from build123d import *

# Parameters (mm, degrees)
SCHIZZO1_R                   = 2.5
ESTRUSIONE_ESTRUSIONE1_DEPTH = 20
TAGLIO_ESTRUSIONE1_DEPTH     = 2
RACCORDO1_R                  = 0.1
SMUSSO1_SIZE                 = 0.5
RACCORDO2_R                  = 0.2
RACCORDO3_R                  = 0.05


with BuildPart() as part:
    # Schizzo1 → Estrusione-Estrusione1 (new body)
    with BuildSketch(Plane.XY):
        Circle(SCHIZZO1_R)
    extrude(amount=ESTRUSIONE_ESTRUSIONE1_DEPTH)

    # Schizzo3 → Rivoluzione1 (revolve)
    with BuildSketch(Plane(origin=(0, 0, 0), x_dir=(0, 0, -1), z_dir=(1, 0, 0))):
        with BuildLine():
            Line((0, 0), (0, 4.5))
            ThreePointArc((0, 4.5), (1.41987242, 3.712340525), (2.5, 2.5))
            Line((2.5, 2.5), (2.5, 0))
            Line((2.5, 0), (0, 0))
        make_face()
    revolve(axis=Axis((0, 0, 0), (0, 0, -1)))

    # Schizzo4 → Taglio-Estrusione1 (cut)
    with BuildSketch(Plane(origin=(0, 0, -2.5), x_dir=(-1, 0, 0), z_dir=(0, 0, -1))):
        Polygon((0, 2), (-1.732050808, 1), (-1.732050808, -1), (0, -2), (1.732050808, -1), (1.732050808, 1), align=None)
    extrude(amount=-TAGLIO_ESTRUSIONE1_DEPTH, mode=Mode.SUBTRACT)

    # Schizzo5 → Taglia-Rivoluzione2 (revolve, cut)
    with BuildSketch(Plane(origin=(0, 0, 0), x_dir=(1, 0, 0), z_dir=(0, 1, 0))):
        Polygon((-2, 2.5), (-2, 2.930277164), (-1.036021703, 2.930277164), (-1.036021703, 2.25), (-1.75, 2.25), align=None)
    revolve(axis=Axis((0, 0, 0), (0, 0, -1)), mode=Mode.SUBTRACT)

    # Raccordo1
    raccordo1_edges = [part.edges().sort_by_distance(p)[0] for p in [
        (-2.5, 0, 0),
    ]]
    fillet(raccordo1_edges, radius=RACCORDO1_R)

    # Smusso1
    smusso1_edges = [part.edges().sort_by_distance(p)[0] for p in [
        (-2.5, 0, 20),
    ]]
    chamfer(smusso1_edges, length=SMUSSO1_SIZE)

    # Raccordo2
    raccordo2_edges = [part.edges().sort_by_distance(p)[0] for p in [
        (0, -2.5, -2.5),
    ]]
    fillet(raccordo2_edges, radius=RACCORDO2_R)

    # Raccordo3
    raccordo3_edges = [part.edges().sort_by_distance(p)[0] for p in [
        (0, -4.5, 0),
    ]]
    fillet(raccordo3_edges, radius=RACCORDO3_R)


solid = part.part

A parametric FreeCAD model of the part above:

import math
import FreeCAD as App
import Part
import Sketcher

V = App.Vector
Q = App.Units.Quantity


def edges_at(feature, points):
    """Names of the edges that pass closest to the given points."""
    edges = feature.Shape.Edges
    near = lambda p: min(range(len(edges)), key=lambda i: edges[i].distToShape(Part.Vertex(*p))[0])
    return sorted({f"Edge{near(p) + 1}" for p in points})


def add_polygon(sketch, points):
    """Adds a closed chain of lines whose ends are joined by coincident constraints."""
    first, n = sketch.GeometryCount, len(points)
    for a, b in zip(points, points[1:] + points[:1]):
        sketch.addGeometry(Part.LineSegment(App.Vector(*a, 0), App.Vector(*b, 0)), False)
    for i in range(n):
        sketch.addConstraint(Sketcher.Constraint("Coincident", first + i, 2, first + (i + 1) % n, 1))

doc = App.newDocument("Part")
body = doc.addObject("PartDesign::Body", "Body")

sketch1 = body.newObject("Sketcher::SketchObject", "Sketch")
sketch1.AttachmentSupport = (doc.getObject("XY_Plane"), [""])
sketch1.MapMode = "FlatFace"
sketch1.addGeometry(Part.Circle(V(0, 0, 0), V(0, 0, 1), 2.5), False)
sketch1.addConstraint(Sketcher.Constraint("Coincident", 0, 3, -1, 1))
sketch1.addConstraint(Sketcher.Constraint("Diameter", 0, Q("5 mm")))
pad1 = body.newObject("PartDesign::Pad", "Pad")
pad1.Profile = sketch1
pad1.Length = 20

sketch2 = body.newObject("Sketcher::SketchObject", "Sketch001")
sketch2.AttachmentSupport = (doc.getObject("YZ_Plane"), [""])
sketch2.MapMode = "FlatFace"
sketch2.addGeometry(Part.LineSegment(V(4.5, 0, 0), V(0, 0, 0)), False)
sketch2.addGeometry(Part.LineSegment(V(0, 0, 0), V(0, -2.5, 0)), False)
sketch2.addGeometry(Part.LineSegment(V(0, -2.5, 0), V(2.5, -2.5, 0)), False)
sketch2.addGeometry(Part.ArcOfCircle(Part.Circle(V(-0.073061, 1.608449, 0), V(0, 0, 1), 4.84768), math.radians(-57.94169), math.radians(-19.377927)), False)
sketch2.addConstraint(Sketcher.Constraint("Coincident", 0, 2, 1, 1))
sketch2.addConstraint(Sketcher.Constraint("Coincident", 1, 2, 2, 1))
sketch2.addConstraint(Sketcher.Constraint("Coincident", 2, 2, 3, 1))
sketch2.addConstraint(Sketcher.Constraint("Coincident", 3, 2, 0, 1))
sketch2.addConstraint(Sketcher.Constraint("Horizontal", 0))
sketch2.addConstraint(Sketcher.Constraint("Vertical", 1))
sketch2.addConstraint(Sketcher.Constraint("Horizontal", 2))
sketch2.addConstraint(Sketcher.Constraint("Coincident", 0, 2, -1, 1))
sketch2.addConstraint(Sketcher.Constraint("Equal", 2, 1))
sketch2.addConstraint(Sketcher.Constraint("DistanceX", 0, 2, 0, 1, Q("4.5 mm")))
sketch2.addConstraint(Sketcher.Constraint("DistanceX", 2, 1, 2, 2, Q("2.5 mm")))
sketch2.addConstraint(Sketcher.Constraint("Radius", 3, Q("4.84768 mm")))
revolution = body.newObject("PartDesign::Revolution", "Revolution")
revolution.Profile = sketch2
revolution.ReferenceAxis = (sketch2, ["V_Axis"])
revolution.Angle = 360

sketch3 = body.newObject("Sketcher::SketchObject", "Sketch002")
sketch3.AttachmentSupport = (doc.getObject("XY_Plane"), [""])
sketch3.MapMode = "FlatFace"
sketch3.AttachmentOffset = App.Placement(V(0, 0, -2.5), App.Rotation())
add_polygon(sketch3, [(0, 2), (1.732051, 1), (1.732051, -1), (0, -2), (-1.732051, -1), (-1.732051, 1)])
sketch3.addConstraint(Sketcher.Constraint("Vertical", 1))
sketch3.addConstraint(Sketcher.Constraint("Vertical", 4))
sketch3.addConstraint(Sketcher.Constraint("Symmetric", 0, 2, 3, 2, -1, 1))
sketch3.addConstraint(Sketcher.Constraint("Symmetric", 2, 2, 5, 2, -1, 1))
sketch3.addConstraint(Sketcher.Constraint("PointOnObject", 2, 2, -2))
sketch3.addConstraint(Sketcher.Constraint("Parallel", 2, 5))
sketch3.addConstraint(Sketcher.Constraint("Horizontal", 1, 2, 3, 2))
sketch3.addConstraint(Sketcher.Constraint("DistanceY", 1, 2, 1, 1, Q("2 mm")))
sketch3.addConstraint(Sketcher.Constraint("Angle", 0, Q("-30 deg")))
sketch3.addConstraint(Sketcher.Constraint("Distance", 0, Q("2 mm")))
pocket1 = body.newObject("PartDesign::Pocket", "Pocket")
pocket1.Profile = sketch3
pocket1.Length = 2
pocket1.Reversed = True

sketch4 = body.newObject("Sketcher::SketchObject", "Sketch003")
sketch4.AttachmentSupport = (doc.getObject("XZ_Plane"), [""])
sketch4.MapMode = "FlatFace"
add_polygon(sketch4, [(-2, -2.930277), (-2, -2.5), (-1.75, -2.25), (-1.036022, -2.25), (-1.036022, -2.930277)])
sketch4.addConstraint(Sketcher.Constraint("Vertical", 0))
sketch4.addConstraint(Sketcher.Constraint("Horizontal", 2))
sketch4.addConstraint(Sketcher.Constraint("Vertical", 3))
sketch4.addConstraint(Sketcher.Constraint("Horizontal", 4))
sketch4.addConstraint(Sketcher.Constraint("Angle", 1, Q("45 deg")))
sketch4.addConstraint(Sketcher.Constraint("DistanceX", 0, 2, -1, 1, Q("2 mm")))
sketch4.addConstraint(Sketcher.Constraint("DistanceY", 0, 2, -1, 1, Q("2.5 mm")))
sketch4.addConstraint(Sketcher.Constraint("DistanceX", 1, 2, -1, 1, Q("1.75 mm")))
sketch4.addConstraint(Sketcher.Constraint("DistanceX", 2, 1, 2, 2, Q("0.713978 mm")))
sketch4.addConstraint(Sketcher.Constraint("DistanceY", 0, 1, 0, 2, Q("0.430277 mm")))
groove = body.newObject("PartDesign::Groove", "Groove")
groove.Profile = sketch4
groove.ReferenceAxis = (sketch4, ["V_Axis"])
groove.Angle = 360
doc.recompute()

fillet = body.newObject("PartDesign::Fillet", "Fillet")
fillet.Base = (groove, edges_at(groove, [(-2.5, 0, 0)]))
fillet.Radius = 0.1
doc.recompute()

chamfer = body.newObject("PartDesign::Chamfer", "Chamfer")
chamfer.Base = (fillet, edges_at(fillet, [(-2.5, 0, 20)]))
chamfer.Size = 0.5
doc.recompute()

fillet2 = body.newObject("PartDesign::Fillet", "Fillet001")
fillet2.Base = (chamfer, edges_at(chamfer, [(0, -2.5, -2.5)]))
fillet2.Radius = 0.2
doc.recompute()

fillet3 = body.newObject("PartDesign::Fillet", "Fillet002")
fillet3.Base = (fillet2, edges_at(fillet2, [(0, -4.5, 0)]))
fillet3.Radius = 0.05

doc.recompute()
